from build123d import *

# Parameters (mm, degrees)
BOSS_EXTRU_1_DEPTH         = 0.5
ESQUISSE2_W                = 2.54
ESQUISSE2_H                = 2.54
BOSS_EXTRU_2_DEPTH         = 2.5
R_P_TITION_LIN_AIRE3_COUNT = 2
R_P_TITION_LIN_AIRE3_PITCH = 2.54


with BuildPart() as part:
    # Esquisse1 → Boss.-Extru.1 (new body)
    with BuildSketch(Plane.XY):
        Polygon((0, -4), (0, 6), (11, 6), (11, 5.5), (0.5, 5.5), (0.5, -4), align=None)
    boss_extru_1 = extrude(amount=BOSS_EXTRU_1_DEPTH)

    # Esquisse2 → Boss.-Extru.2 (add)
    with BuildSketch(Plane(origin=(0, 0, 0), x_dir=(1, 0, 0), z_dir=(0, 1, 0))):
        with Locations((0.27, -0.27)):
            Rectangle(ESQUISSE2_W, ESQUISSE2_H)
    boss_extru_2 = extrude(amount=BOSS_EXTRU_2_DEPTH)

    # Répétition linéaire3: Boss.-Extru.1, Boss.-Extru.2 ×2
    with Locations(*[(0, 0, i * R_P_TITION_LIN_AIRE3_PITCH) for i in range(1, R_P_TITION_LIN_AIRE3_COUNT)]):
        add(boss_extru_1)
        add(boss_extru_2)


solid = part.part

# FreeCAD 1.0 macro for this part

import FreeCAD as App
import Part
import Sketcher

V = App.Vector

doc = App.newDocument("Part")
body = doc.addObject("PartDesign::Body", "Body")

sketch1 = doc.addObject("Sketcher::SketchObject", "Sketch")
body.addObject(sketch1)
sketch1.AttachmentSupport = (doc.XY_Plane, [""])
sketch1.MapMode = "FlatFace"
sketch1.addGeometry([
    Part.LineSegment(V(0, 6, 0), V(0, -4, 0)),
    Part.LineSegment(V(0, -4, 0), V(0.5, -4, 0)),
    Part.LineSegment(V(0.5, -4, 0), V(0.5, 5.5, 0)),
    Part.LineSegment(V(0.5, 5.5, 0), V(11, 5.5, 0)),
    Part.LineSegment(V(11, 5.5, 0), V(11, 6, 0)),
    Part.LineSegment(V(11, 6, 0), V(0, 6, 0)),
], False)
sketch1.addConstraint([
    Sketcher.Constraint("Coincident", 0, 2, 1, 1),
    Sketcher.Constraint("Coincident", 1, 2, 2, 1),
    Sketcher.Constraint("Coincident", 2, 2, 3, 1),
    Sketcher.Constraint("Coincident", 3, 2, 4, 1),
    Sketcher.Constraint("Coincident", 4, 2, 5, 1),
    Sketcher.Constraint("Coincident", 5, 2, 0, 1),
    Sketcher.Constraint("Vertical", 0),
    Sketcher.Constraint("Horizontal", 1),
    Sketcher.Constraint("Vertical", 2),
    Sketcher.Constraint("Horizontal", 3),
    Sketcher.Constraint("Vertical", 4),
    Sketcher.Constraint("Horizontal", 5),
    Sketcher.Constraint("PointOnObject", 0, 2, -2),
    Sketcher.Constraint("Equal", 1, 4),
    Sketcher.Constraint("DistanceX", 5, 2, 5, 1, 11.0),
    Sketcher.Constraint("DistanceY", 0, 2, 0, 1, 10.0),
    Sketcher.Constraint("DistanceX", 1, 1, 1, 2, 0.5),
    Sketcher.Constraint("DistanceY", 0, 2, -1, 1, 4.0),
])
pad1 = doc.addObject("PartDesign::Pad", "Pad")
body.addObject(pad1)
pad1.Profile = sketch1
pad1.Length = 0.5

sketch2 = doc.addObject("Sketcher::SketchObject", "Sketch001")
body.addObject(sketch2)
sketch2.AttachmentSupport = (doc.XZ_Plane, [""])
sketch2.MapMode = "FlatFace"
sketch2.addGeometry([
    Part.LineSegment(V(-1, -1, 0), V(-1, 1.5, 0)),
    Part.LineSegment(V(-1, 1.5, 0), V(1.5, 1.5, 0)),
    Part.LineSegment(V(1.5, 1.5, 0), V(1.5, -1, 0)),
    Part.LineSegment(V(1.5, -1, 0), V(-1, -1, 0)),
], False)
sketch2.addConstraint([
    Sketcher.Constraint("Coincident", 0, 2, 1, 1),
    Sketcher.Constraint("Coincident", 1, 2, 2, 1),
    Sketcher.Constraint("Coincident", 2, 2, 3, 1),
    Sketcher.Constraint("Coincident", 3, 2, 0, 1),
    Sketcher.Constraint("Vertical", 0),
    Sketcher.Constraint("Horizontal", 1),
    Sketcher.Constraint("Vertical", 2),
    Sketcher.Constraint("Horizontal", 3),
    Sketcher.Constraint("Equal", 3, 0),
    Sketcher.Constraint("DistanceX", 0, 2, -1, 1, 1.0),
    Sketcher.Constraint("DistanceY", 2, 2, -1, 1, 1.0),
    Sketcher.Constraint("DistanceX", 1, 1, 1, 2, 2.54),
])
pad2 = doc.addObject("PartDesign::Pad", "Pad001")
body.addObject(pad2)
pad2.Profile = sketch2
pad2.Length = 2.5
pad2.Reversed = True
doc.recompute()

linearpattern = doc.addObject("PartDesign::LinearPattern", "LinearPattern")
body.addObject(linearpattern)
linearpattern.Originals = [pad1, pad2]
linearpattern.Direction = (doc.Z_Axis, [""])
linearpattern.Mode = "offset"
linearpattern.Offset = 2.54
linearpattern.Occurrences = 2
body.Tip = linearpattern

doc.recompute()
